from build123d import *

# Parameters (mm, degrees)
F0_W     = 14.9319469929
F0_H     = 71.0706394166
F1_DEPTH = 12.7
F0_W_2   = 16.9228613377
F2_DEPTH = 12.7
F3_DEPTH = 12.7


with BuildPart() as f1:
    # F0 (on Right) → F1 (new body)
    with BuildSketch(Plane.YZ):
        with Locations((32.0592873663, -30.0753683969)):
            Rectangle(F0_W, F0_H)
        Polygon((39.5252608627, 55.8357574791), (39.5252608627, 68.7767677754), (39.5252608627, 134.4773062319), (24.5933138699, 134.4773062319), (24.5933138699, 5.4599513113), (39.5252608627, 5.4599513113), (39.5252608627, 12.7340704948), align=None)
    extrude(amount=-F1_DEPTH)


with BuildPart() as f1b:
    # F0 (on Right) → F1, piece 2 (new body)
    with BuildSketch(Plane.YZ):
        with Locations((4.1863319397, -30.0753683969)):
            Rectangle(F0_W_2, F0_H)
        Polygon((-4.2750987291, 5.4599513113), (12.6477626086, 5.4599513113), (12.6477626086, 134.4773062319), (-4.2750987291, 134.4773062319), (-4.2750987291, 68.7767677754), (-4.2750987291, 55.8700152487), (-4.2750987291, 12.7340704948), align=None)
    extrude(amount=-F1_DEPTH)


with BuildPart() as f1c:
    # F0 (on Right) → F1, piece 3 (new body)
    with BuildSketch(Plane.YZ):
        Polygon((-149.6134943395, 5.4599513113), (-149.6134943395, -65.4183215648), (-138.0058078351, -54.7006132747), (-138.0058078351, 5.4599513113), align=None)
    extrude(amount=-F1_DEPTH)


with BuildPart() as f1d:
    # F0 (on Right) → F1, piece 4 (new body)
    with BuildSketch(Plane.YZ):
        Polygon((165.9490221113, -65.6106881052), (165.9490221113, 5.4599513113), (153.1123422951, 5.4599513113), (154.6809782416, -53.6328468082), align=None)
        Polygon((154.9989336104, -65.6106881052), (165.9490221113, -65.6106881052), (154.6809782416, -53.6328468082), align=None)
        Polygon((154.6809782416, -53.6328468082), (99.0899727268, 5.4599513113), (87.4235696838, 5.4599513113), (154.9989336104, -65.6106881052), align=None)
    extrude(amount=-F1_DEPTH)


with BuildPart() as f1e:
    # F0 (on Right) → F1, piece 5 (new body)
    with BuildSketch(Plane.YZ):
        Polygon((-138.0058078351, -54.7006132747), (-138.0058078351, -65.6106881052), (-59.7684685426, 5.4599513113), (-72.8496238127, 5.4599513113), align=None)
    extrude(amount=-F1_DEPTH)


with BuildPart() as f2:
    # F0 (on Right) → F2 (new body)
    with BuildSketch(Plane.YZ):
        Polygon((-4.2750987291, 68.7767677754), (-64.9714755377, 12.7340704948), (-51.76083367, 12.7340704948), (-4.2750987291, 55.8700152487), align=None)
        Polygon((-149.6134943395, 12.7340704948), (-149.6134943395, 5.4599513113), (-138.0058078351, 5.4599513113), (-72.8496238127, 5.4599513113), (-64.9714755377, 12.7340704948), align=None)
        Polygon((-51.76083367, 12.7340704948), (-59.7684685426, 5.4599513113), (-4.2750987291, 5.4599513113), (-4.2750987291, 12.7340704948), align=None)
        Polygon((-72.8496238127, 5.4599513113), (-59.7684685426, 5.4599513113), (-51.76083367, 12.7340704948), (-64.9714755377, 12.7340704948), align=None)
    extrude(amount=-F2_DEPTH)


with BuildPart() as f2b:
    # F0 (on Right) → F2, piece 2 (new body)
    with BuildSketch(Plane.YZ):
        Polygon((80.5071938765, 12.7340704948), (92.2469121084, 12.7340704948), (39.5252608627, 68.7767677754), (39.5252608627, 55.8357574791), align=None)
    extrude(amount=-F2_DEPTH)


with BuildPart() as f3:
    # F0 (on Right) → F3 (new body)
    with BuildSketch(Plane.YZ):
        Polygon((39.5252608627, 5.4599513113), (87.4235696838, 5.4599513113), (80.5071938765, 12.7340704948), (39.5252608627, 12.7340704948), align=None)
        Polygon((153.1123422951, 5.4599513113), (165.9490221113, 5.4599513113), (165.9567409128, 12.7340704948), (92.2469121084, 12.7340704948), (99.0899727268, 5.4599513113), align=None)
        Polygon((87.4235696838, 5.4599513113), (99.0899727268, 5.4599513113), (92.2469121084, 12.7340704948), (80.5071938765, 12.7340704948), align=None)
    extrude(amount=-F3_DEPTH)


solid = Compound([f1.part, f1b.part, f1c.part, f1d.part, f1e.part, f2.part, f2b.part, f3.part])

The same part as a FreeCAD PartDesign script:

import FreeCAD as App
import Part
import Sketcher
Q = App.Units.Quantity

doc = App.newDocument("Part")
body = doc.addObject("PartDesign::Body", "Body")

sketch1 = doc.addObject("Sketcher::SketchObject", "Sketch")
body.addObject(sketch1)
sketch1.AttachmentSupport = (doc.YZ_Plane, [""])
sketch1.MapMode = "FlatFace"
sketch1.addGeometry([
    Part.LineSegment(App.Vector(24.593314, -65.610688, 0), App.Vector(39.525261, -65.610688, 0)),
    Part.LineSegment(App.Vector(39.525261, -65.610688, 0), App.Vector(39.525261, 134.477306, 0)),
    Part.LineSegment(App.Vector(39.525261, 134.477306, 0), App.Vector(24.593314, 134.477306, 0)),
    Part.LineSegment(App.Vector(24.593314, 134.477306, 0), App.Vector(24.593314, -65.610688, 0)),
], False)
sketch1.addConstraint([
    Sketcher.Constraint("Coincident", 0, 2, 1, 1),
    Sketcher.Constraint("Coincident", 1, 2, 2, 1),
    Sketcher.Constraint("Coincident", 2, 2, 3, 1),
    Sketcher.Constraint("Coincident", 3, 2, 0, 1),
    Sketcher.Constraint("Horizontal", 0),
    Sketcher.Constraint("Vertical", 1),
    Sketcher.Constraint("Horizontal", 2),
    Sketcher.Constraint("Vertical", 3),
    Sketcher.Constraint("DistanceX", 0, 1, 0, 2, 14.931947),
    Sketcher.Constraint("DistanceY", 1, 1, 1, 2, 200.087994),
    Sketcher.Constraint("DistanceX", -1, 1, 0, 2, 39.525261),
    Sketcher.Constraint("DistanceY", 0, 2, -1, 1, 65.610688),
])
pad1 = doc.addObject("PartDesign::Pad", "Pad")
body.addObject(pad1)
pad1.Profile = sketch1
pad1.Length = Q("0.5 in")
pad1.Reversed = True
body2 = doc.addObject("PartDesign::Body", "Body001")

sketch2 = doc.addObject("Sketcher::SketchObject", "Sketch001")
body2.addObject(sketch2)
sketch2.AttachmentSupport = (doc.getObject("YZ_Plane001"), [""])
sketch2.MapMode = "FlatFace"
sketch2.addGeometry([
    Part.LineSegment(App.Vector(-4.275099, -65.610688, 0), App.Vector(12.647763, -65.610688, 0)),
    Part.LineSegment(App.Vector(12.647763, -65.610688, 0), App.Vector(12.647763, 134.477306, 0)),
    Part.LineSegment(App.Vector(12.647763, 134.477306, 0), App.Vector(-4.275099, 134.477306, 0)),
    Part.LineSegment(App.Vector(-4.275099, 134.477306, 0), App.Vector(-4.275099, -65.610688, 0)),
], False)
sketch2.addConstraint([
    Sketcher.Constraint("Coincident", 0, 2, 1, 1),
    Sketcher.Constraint("Coincident", 1, 2, 2, 1),
    Sketcher.Constraint("Coincident", 2, 2, 3, 1),
    Sketcher.Constraint("Coincident", 3, 2, 0, 1),
    Sketcher.Constraint("Horizontal", 0),
    Sketcher.Constraint("Vertical", 1),
    Sketcher.Constraint("Horizontal", 2),
    Sketcher.Constraint("Vertical", 3),
    Sketcher.Constraint("DistanceX", 0, 1, 0, 2, 16.922861),
    Sketcher.Constraint("DistanceX", 2, 2, -1, 1, 4.275099),
    Sketcher.Constraint("DistanceY", 1, 1, 1, 2, 200.087994),
    Sketcher.Constraint("DistanceY", 0, 2, -1, 1, 65.610688),
])
pad2 = doc.addObject("PartDesign::Pad", "Pad001")
body2.addObject(pad2)
pad2.Profile = sketch2
pad2.Length = Q("0.5 in")
pad2.Reversed = True
body3 = doc.addObject("PartDesign::Body", "Body002")

sketch3 = doc.addObject("Sketcher::SketchObject", "Sketch002")
body3.addObject(sketch3)
sketch3.AttachmentSupport = (doc.getObject("YZ_Plane002"), [""])
sketch3.MapMode = "FlatFace"
sketch3.addGeometry([
    Part.LineSegment(App.Vector(-149.613494, 5.459951, 0), App.Vector(-149.613494, -65.418322, 0)),
    Part.LineSegment(App.Vector(-149.613494, -65.418322, 0), App.Vector(-138.005808, -54.700613, 0)),
    Part.LineSegment(App.Vector(-138.005808, -54.700613, 0), App.Vector(-138.005808, 5.459951, 0)),
    Part.LineSegment(App.Vector(-138.005808, 5.459951, 0), App.Vector(-149.613494, 5.459951, 0)),
], False)
sketch3.addConstraint([
    Sketcher.Constraint("Coincident", 0, 2, 1, 1),
    Sketcher.Constraint("Coincident", 1, 2, 2, 1),
    Sketcher.Constraint("Coincident", 2, 2, 3, 1),
    Sketcher.Constraint("Coincident", 3, 2, 0, 1),
    Sketcher.Constraint("Vertical", 0),
    Sketcher.Constraint("Vertical", 2),
    Sketcher.Constraint("Horizontal", 3),
    Sketcher.Constraint("DistanceX", 3, 2, 3, 1, 11.607687),
    Sketcher.Constraint("DistanceY", 0, 2, 0, 1, 70.878273),
    Sketcher.Constraint("DistanceY", 2, 1, 2, 2, 60.160565),
    Sketcher.Constraint("DistanceY", 0, 2, -1, 1, 65.418322),
    Sketcher.Constraint("DistanceX", 0, 2, -1, 1, 149.613494),
])
pad3 = doc.addObject("PartDesign::Pad", "Pad002")
body3.addObject(pad3)
pad3.Profile = sketch3
pad3.Length = Q("0.5 in")
pad3.Reversed = True
body4 = doc.addObject("PartDesign::Body", "Body003")

sketch4 = doc.addObject("Sketcher::SketchObject", "Sketch003")
body4.addObject(sketch4)
sketch4.AttachmentSupport = (doc.getObject("YZ_Plane003"), [""])
sketch4.MapMode = "FlatFace"
sketch4.addGeometry([
    Part.LineSegment(App.Vector(165.949022, -65.610688, 0), App.Vector(165.949022, 5.459951, 0)),
    Part.LineSegment(App.Vector(165.949022, 5.459951, 0), App.Vector(153.112342, 5.459951, 0)),
    Part.LineSegment(App.Vector(153.112342, 5.459951, 0), App.Vector(154.680978, -53.632847, 0)),
    Part.LineSegment(App.Vector(154.680978, -53.632847, 0), App.Vector(99.089973, 5.459951, 0)),
    Part.LineSegment(App.Vector(99.089973, 5.459951, 0), App.Vector(87.42357, 5.459951, 0)),
    Part.LineSegment(App.Vector(87.42357, 5.459951, 0), App.Vector(154.998934, -65.610688, 0)),
    Part.LineSegment(App.Vector(154.998934, -65.610688, 0), App.Vector(165.949022, -65.610688, 0)),
], False)
sketch4.addConstraint([
    Sketcher.Constraint("Coincident", 0, 2, 1, 1),
    Sketcher.Constraint("Coincident", 1, 2, 2, 1),
    Sketcher.Constraint("Coincident", 2, 2, 3, 1),
    Sketcher.Constraint("Coincident", 3, 2, 4, 1),
    Sketcher.Constraint("Coincident", 4, 2, 5, 1),
    Sketcher.Constraint("Coincident", 5, 2, 6, 1),
    Sketcher.Constraint("Coincident", 6, 2, 0, 1),
    Sketcher.Constraint("Vertical", 0),
    Sketcher.Constraint("Horizontal", 1),
    Sketcher.Constraint("Horizontal", 4),
    Sketcher.Constraint("Horizontal", 6),
    Sketcher.Constraint("Horizontal", 1, 2, 3, 2),
    Sketcher.Constraint("DistanceX", 1, 2, 1, 1, 12.83668),
    Sketcher.Constraint("DistanceX", 6, 1, 6, 2, 10.950089),
    Sketcher.Constraint("DistanceY", 0, 1, 0, 2, 71.070639),
    Sketcher.Constraint("DistanceY", 2, 2, 1, 2, 59.092798),
    Sketcher.Constraint("Distance", 3, 81.13149),
    Sketcher.Constraint("DistanceX", 4, 2, 4, 1, 11.666403),
    Sketcher.Constraint("DistanceY", -1, 1, 0, 2, 5.459951),
    Sketcher.Constraint("DistanceX", -1, 1, 2, 2, 154.680978),
    Sketcher.Constraint("DistanceX", 3, 2, 1, 2, 54.02237),
])
pad4 = doc.addObject("PartDesign::Pad", "Pad003")
body4.addObject(pad4)
pad4.Profile = sketch4
pad4.Length = Q("0.5 in")
pad4.Reversed = True
body5 = doc.addObject("PartDesign::Body", "Body004")

sketch5 = doc.addObject("Sketcher::SketchObject", "Sketch004")
body5.addObject(sketch5)
sketch5.AttachmentSupport = (doc.getObject("YZ_Plane004"), [""])
sketch5.MapMode = "FlatFace"
sketch5.addGeometry([
    Part.LineSegment(App.Vector(-138.005808, -54.700613, 0), App.Vector(-138.005808, -65.610688, 0)),
    Part.LineSegment(App.Vector(-138.005808, -65.610688, 0), App.Vector(-59.768469, 5.459951, 0)),
    Part.LineSegment(App.Vector(-59.768469, 5.459951, 0), App.Vector(-72.849624, 5.459951, 0)),
    Part.LineSegment(App.Vector(-72.849624, 5.459951, 0), App.Vector(-138.005808, -54.700613, 0)),
], False)
sketch5.addConstraint([
    Sketcher.Constraint("Coincident", 0, 2, 1, 1),
    Sketcher.Constraint("Coincident", 1, 2, 2, 1),
    Sketcher.Constraint("Coincident", 2, 2, 3, 1),
    Sketcher.Constraint("Coincident", 3, 2, 0, 1),
    Sketcher.Constraint("Vertical", 0),
    Sketcher.Constraint("Horizontal", 2),
    Sketcher.Constraint("DistanceX", 2, 2, 2, 1, 13.081155),
    Sketcher.Constraint("DistanceY", 0, 2, 0, 1, 10.910075),
    Sketcher.Constraint("DistanceY", 0, 2, -1, 1, 65.610688),
    Sketcher.Constraint("DistanceX", 1, 2, -1, 1, 59.768469),
    Sketcher.Constraint("DistanceY", -1, 1, 1, 2, 5.459951),
    Sketcher.Constraint("DistanceX", 0, 2, 1, 2, 78.237339),
])
pad5 = doc.addObject("PartDesign::Pad", "Pad004")
body5.addObject(pad5)
pad5.Profile = sketch5
pad5.Length = Q("0.5 in")
pad5.Reversed = True
body6 = doc.addObject("PartDesign::Body", "Body005")

sketch6 = doc.addObject("Sketcher::SketchObject", "Sketch005")
body6.addObject(sketch6)
sketch6.AttachmentSupport = (doc.getObject("YZ_Plane005"), [""])
sketch6.MapMode = "FlatFace"
sketch6.addGeometry([
    Part.LineSegment(App.Vector(-4.275099, 68.776768, 0), App.Vector(-64.971476, 12.73407, 0)),
    Part.LineSegment(App.Vector(-64.971476, 12.73407, 0), App.Vector(-149.613494, 12.73407, 0)),
    Part.LineSegment(App.Vector(-149.613494, 12.73407, 0), App.Vector(-149.613494, 5.459951, 0)),
    Part.LineSegment(App.Vector(-149.613494, 5.459951, 0), App.Vector(-4.275099, 5.459951, 0)),
    Part.LineSegment(App.Vector(-4.275099, 5.459951, 0), App.Vector(-4.275099, 12.73407, 0)),
    Part.LineSegment(App.Vector(-4.275099, 12.73407, 0), App.Vector(-51.760834, 12.73407, 0)),
    Part.LineSegment(App.Vector(-51.760834, 12.73407, 0), App.Vector(-4.275099, 55.870015, 0)),
    Part.LineSegment(App.Vector(-4.275099, 55.870015, 0), App.Vector(-4.275099, 68.776768, 0)),
], False)
sketch6.addConstraint([
    Sketcher.Constraint("Coincident", 0, 2, 1, 1),
    Sketcher.Constraint("Coincident", 1, 2, 2, 1),
    Sketcher.Constraint("Coincident", 2, 2, 3, 1),
    Sketcher.Constraint("Coincident", 3, 2, 4, 1),
    Sketcher.Constraint("Coincident", 4, 2, 5, 1),
    Sketcher.Constraint("Coincident", 5, 2, 6, 1),
    Sketcher.Constraint("Coincident", 6, 2, 7, 1),
    Sketcher.Constraint("Coincident", 7, 2, 0, 1),
    Sketcher.Constraint("Horizontal", 1),
    Sketcher.Constraint("Vertical", 2),
    Sketcher.Constraint("Horizontal", 3),
    Sketcher.Constraint("Vertical", 4),
    Sketcher.Constraint("Horizontal", 5),
    Sketcher.Constraint("Vertical", 7),
    Sketcher.Constraint("Horizontal", 1, 2, 4, 2),
    Sketcher.Constraint("Vertical", 4, 2, 6, 2),
    Sketcher.Constraint("DistanceX", 1, 2, 1, 1, 84.642019),
    Sketcher.Constraint("DistanceY", 2, 2, 2, 1, 7.274119),
    Sketcher.Constraint("DistanceX", 3, 2, -1, 1, 4.275099),
    Sketcher.Constraint("Distance", 6, 64.152979),
    Sketcher.Constraint("DistanceX", 3, 1, 3, 2, 145.338396),
    Sketcher.Constraint("DistanceX", 5, 2, 5, 1, 47.485735),
    Sketcher.Constraint("DistanceY", 7, 1, 7, 2, 12.906753),
    Sketcher.Constraint("DistanceY", -1, 1, 0, 2, 12.73407),
])
pad6 = doc.addObject("PartDesign::Pad", "Pad005")
body6.addObject(pad6)
pad6.Profile = sketch6
pad6.Length = Q("0.5 in")
pad6.Reversed = True
body7 = doc.addObject("PartDesign::Body", "Body006")

sketch7 = doc.addObject("Sketcher::SketchObject", "Sketch006")
body7.addObject(sketch7)
sketch7.AttachmentSupport = (doc.getObject("YZ_Plane006"), [""])
sketch7.MapMode = "FlatFace"
sketch7.addGeometry([
    Part.LineSegment(App.Vector(80.507194, 12.73407, 0), App.Vector(92.246912, 12.73407, 0)),
    Part.LineSegment(App.Vector(92.246912, 12.73407, 0), App.Vector(39.525261, 68.776768, 0)),
    Part.LineSegment(App.Vector(39.525261, 68.776768, 0), App.Vector(39.525261, 55.835757, 0)),
    Part.LineSegment(App.Vector(39.525261, 55.835757, 0), App.Vector(80.507194, 12.73407, 0)),
], False)
sketch7.addConstraint([
    Sketcher.Constraint("Coincident", 0, 2, 1, 1),
    Sketcher.Constraint("Coincident", 1, 2, 2, 1),
    Sketcher.Constraint("Coincident", 2, 2, 3, 1),
    Sketcher.Constraint("Coincident", 3, 2, 0, 1),
    Sketcher.Constraint("Horizontal", 0),
    Sketcher.Constraint("Vertical", 2),
    Sketcher.Constraint("DistanceX", 0, 1, 0, 2, 11.739718),
    Sketcher.Constraint("DistanceY", 2, 2, 2, 1, 12.94101),
    Sketcher.Constraint("Distance", 3, 59.474988),
    Sketcher.Constraint("DistanceY", -1, 1, 0, 2, 12.73407),
    Sketcher.Constraint("DistanceX", -1, 1, 1, 2, 39.525261),
    Sketcher.Constraint("DistanceX", 1, 2, 0, 2, 52.721651),
])
pad7 = doc.addObject("PartDesign::Pad", "Pad006")
body7.addObject(pad7)
pad7.Profile = sketch7
pad7.Length = Q("0.5 in")
pad7.Reversed = True
body8 = doc.addObject("PartDesign::Body", "Body007")

sketch8 = doc.addObject("Sketcher::SketchObject", "Sketch007")
body8.addObject(sketch8)
sketch8.AttachmentSupport = (doc.getObject("YZ_Plane007"), [""])
sketch8.MapMode = "FlatFace"
sketch8.addGeometry([
    Part.LineSegment(App.Vector(39.525261, 5.459951, 0), App.Vector(165.949022, 5.459951, 0)),
    Part.LineSegment(App.Vector(165.949022, 5.459951, 0), App.Vector(165.956741, 12.73407, 0)),
    Part.LineSegment(App.Vector(165.956741, 12.73407, 0), App.Vector(39.525261, 12.73407, 0)),
    Part.LineSegment(App.Vector(39.525261, 12.73407, 0), App.Vector(39.525261, 5.459951, 0)),
], False)
sketch8.addConstraint([
    Sketcher.Constraint("Coincident", 0, 2, 1, 1),
    Sketcher.Constraint("Coincident", 1, 2, 2, 1),
    Sketcher.Constraint("Coincident", 2, 2, 3, 1),
    Sketcher.Constraint("Coincident", 3, 2, 0, 1),
    Sketcher.Constraint("Horizontal", 0),
    Sketcher.Constraint("Horizontal", 2),
    Sketcher.Constraint("Vertical", 3),
    Sketcher.Constraint("DistanceX", 0, 1, 0, 2, 126.423761),
    Sketcher.Constraint("DistanceX", 2, 2, 2, 1, 126.43148),
    Sketcher.Constraint("DistanceY", 3, 2, 3, 1, 7.274119),
    Sketcher.Constraint("DistanceY", -1, 1, 0, 2, 5.459951),
    Sketcher.Constraint("DistanceX", -1, 1, 1, 2, 165.956741),
])
pad8 = doc.addObject("PartDesign::Pad", "Pad007")
body8.addObject(pad8)
pad8.Profile = sketch8
pad8.Length = Q("0.5 in")
pad8.Reversed = True

doc.recompute()
